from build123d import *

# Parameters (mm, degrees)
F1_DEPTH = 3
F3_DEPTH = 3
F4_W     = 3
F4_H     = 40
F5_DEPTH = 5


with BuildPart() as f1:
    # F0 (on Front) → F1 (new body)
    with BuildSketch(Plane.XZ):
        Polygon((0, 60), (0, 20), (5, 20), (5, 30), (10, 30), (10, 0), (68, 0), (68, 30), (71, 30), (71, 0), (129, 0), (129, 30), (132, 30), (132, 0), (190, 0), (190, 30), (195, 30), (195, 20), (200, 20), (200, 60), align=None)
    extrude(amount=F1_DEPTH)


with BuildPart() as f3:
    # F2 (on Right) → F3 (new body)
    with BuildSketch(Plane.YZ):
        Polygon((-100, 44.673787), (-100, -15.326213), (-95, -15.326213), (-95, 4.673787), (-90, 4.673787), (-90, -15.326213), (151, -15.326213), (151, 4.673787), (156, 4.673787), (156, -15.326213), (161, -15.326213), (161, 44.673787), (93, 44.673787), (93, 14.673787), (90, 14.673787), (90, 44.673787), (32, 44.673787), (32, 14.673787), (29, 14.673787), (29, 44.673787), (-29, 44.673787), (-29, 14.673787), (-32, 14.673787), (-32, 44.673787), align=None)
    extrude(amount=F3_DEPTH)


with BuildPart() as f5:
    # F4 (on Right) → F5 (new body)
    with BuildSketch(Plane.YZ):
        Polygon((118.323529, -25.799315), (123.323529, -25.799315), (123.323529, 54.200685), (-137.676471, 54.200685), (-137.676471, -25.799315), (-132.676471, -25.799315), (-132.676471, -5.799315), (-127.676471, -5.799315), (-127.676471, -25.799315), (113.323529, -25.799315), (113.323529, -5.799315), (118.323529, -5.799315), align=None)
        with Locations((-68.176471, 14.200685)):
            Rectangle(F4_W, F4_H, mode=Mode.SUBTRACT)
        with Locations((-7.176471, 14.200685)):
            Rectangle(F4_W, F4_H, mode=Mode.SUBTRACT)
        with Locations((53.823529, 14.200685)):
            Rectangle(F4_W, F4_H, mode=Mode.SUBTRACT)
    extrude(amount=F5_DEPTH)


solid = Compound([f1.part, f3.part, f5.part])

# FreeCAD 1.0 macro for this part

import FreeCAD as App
import Part
import Sketcher

doc = App.newDocument("Part")
body = doc.addObject("PartDesign::Body", "Body")

sketch1 = body.newObject("Sketcher::SketchObject", "Sketch")
sketch1.AttachmentSupport = (doc.getObject("XZ_Plane"), [""])
sketch1.MapMode = "FlatFace"
sketch1.addGeometry(Part.LineSegment(App.Vector(0, 60, 0), App.Vector(0, 20, 0)), False)
sketch1.addGeometry(Part.LineSegment(App.Vector(0, 20, 0), App.Vector(5, 20, 0)), False)
sketch1.addGeometry(Part.LineSegment(App.Vector(5, 20, 0), App.Vector(5, 30, 0)), False)
sketch1.addGeometry(Part.LineSegment(App.Vector(5, 30, 0), App.Vector(10, 30, 0)), False)
sketch1.addGeometry(Part.LineSegment(App.Vector(10, 30, 0), App.Vector(10, 0, 0)), False)
sketch1.addGeometry(Part.LineSegment(App.Vector(10, 0, 0), App.Vector(68, 0, 0)), False)
sketch1.addGeometry(Part.LineSegment(App.Vector(68, 0, 0), App.Vector(68, 30, 0)), False)
sketch1.addGeometry(Part.LineSegment(App.Vector(68, 30, 0), App.Vector(71, 30, 0)), False)
sketch1.addGeometry(Part.LineSegment(App.Vector(71, 30, 0), App.Vector(71, 0, 0)), False)
sketch1.addGeometry(Part.LineSegment(App.Vector(71, 0, 0), App.Vector(129, 0, 0)), False)
sketch1.addGeometry(Part.LineSegment(App.Vector(129, 0, 0), App.Vector(129, 30, 0)), False)
sketch1.addGeometry(Part.LineSegment(App.Vector(129, 30, 0), App.Vector(132, 30, 0)), False)
sketch1.addGeometry(Part.LineSegment(App.Vector(132, 30, 0), App.Vector(132, 0, 0)), False)
sketch1.addGeometry(Part.LineSegment(App.Vector(132, 0, 0), App.Vector(190, 0, 0)), False)
sketch1.addGeometry(Part.LineSegment(App.Vector(190, 0, 0), App.Vector(190, 30, 0)), False)
sketch1.addGeometry(Part.LineSegment(App.Vector(190, 30, 0), App.Vector(195, 30, 0)), False)
sketch1.addGeometry(Part.LineSegment(App.Vector(195, 30, 0), App.Vector(195, 20, 0)), False)
sketch1.addGeometry(Part.LineSegment(App.Vector(195, 20, 0), App.Vector(200, 20, 0)), False)
sketch1.addGeometry(Part.LineSegment(App.Vector(200, 20, 0), App.Vector(200, 60, 0)), False)
sketch1.addGeometry(Part.LineSegment(App.Vector(200, 60, 0), App.Vector(0, 60, 0)), False)
sketch1.addConstraint(Sketcher.Constraint("Coincident", 0, 2, 1, 1))
sketch1.addConstraint(Sketcher.Constraint("Coincident", 1, 2, 2, 1))
sketch1.addConstraint(Sketcher.Constraint("Coincident", 2, 2, 3, 1))
sketch1.addConstraint(Sketcher.Constraint("Coincident", 3, 2, 4, 1))
sketch1.addConstraint(Sketcher.Constraint("Coincident", 4, 2, 5, 1))
sketch1.addConstraint(Sketcher.Constraint("Coincident", 5, 2, 6, 1))
sketch1.addConstraint(Sketcher.Constraint("Coincident", 6, 2, 7, 1))
sketch1.addConstraint(Sketcher.Constraint("Coincident", 7, 2, 8, 1))
sketch1.addConstraint(Sketcher.Constraint("Coincident", 8, 2, 9, 1))
sketch1.addConstraint(Sketcher.Constraint("Coincident", 9, 2, 10, 1))
sketch1.addConstraint(Sketcher.Constraint("Coincident", 10, 2, 11, 1))
sketch1.addConstraint(Sketcher.Constraint("Coincident", 11, 2, 12, 1))
sketch1.addConstraint(Sketcher.Constraint("Coincident", 12, 2, 13, 1))
sketch1.addConstraint(Sketcher.Constraint("Coincident", 13, 2, 14, 1))
sketch1.addConstraint(Sketcher.Constraint("Coincident", 14, 2, 15, 1))
sketch1.addConstraint(Sketcher.Constraint("Coincident", 15, 2, 16, 1))
sketch1.addConstraint(Sketcher.Constraint("Coincident", 16, 2, 17, 1))
sketch1.addConstraint(Sketcher.Constraint("Coincident", 17, 2, 18, 1))
sketch1.addConstraint(Sketcher.Constraint("Coincident", 18, 2, 19, 1))
sketch1.addConstraint(Sketcher.Constraint("Coincident", 19, 2, 0, 1))
sketch1.addConstraint(Sketcher.Constraint("Vertical", 0))
sketch1.addConstraint(Sketcher.Constraint("Horizontal", 1))
sketch1.addConstraint(Sketcher.Constraint("Vertical", 2))
sketch1.addConstraint(Sketcher.Constraint("Horizontal", 3))
sketch1.addConstraint(Sketcher.Constraint("Vertical", 4))
sketch1.addConstraint(Sketcher.Constraint("Horizontal", 5))
sketch1.addConstraint(Sketcher.Constraint("Vertical", 6))
sketch1.addConstraint(Sketcher.Constraint("Horizontal", 7))
sketch1.addConstraint(Sketcher.Constraint("Vertical", 8))
sketch1.addConstraint(Sketcher.Constraint("Horizontal", 9))
sketch1.addConstraint(Sketcher.Constraint("Vertical", 10))
sketch1.addConstraint(Sketcher.Constraint("Horizontal", 11))
sketch1.addConstraint(Sketcher.Constraint("Vertical", 12))
sketch1.addConstraint(Sketcher.Constraint("Horizontal", 13))
sketch1.addConstraint(Sketcher.Constraint("Vertical", 14))
sketch1.addConstraint(Sketcher.Constraint("Horizontal", 15))
sketch1.addConstraint(Sketcher.Constraint("Vertical", 16))
sketch1.addConstraint(Sketcher.Constraint("Horizontal", 17))
sketch1.addConstraint(Sketcher.Constraint("Vertical", 18))
sketch1.addConstraint(Sketcher.Constraint("Horizontal", 19))
sketch1.addConstraint(Sketcher.Constraint("PointOnObject", 0, 2, -2))
sketch1.addConstraint(Sketcher.Constraint("PointOnObject", 4, 2, -1))
sketch1.addConstraint(Sketcher.Constraint("PointOnObject", 8, 2, -1))
sketch1.addConstraint(Sketcher.Constraint("PointOnObject", 12, 2, -1))
sketch1.addConstraint(Sketcher.Constraint("Horizontal", 3, 2, 6, 2))
sketch1.addConstraint(Sketcher.Constraint("Horizontal", 7, 2, 10, 2))
sketch1.addConstraint(Sketcher.Constraint("Horizontal", 11, 2, 14, 2))
sketch1.addConstraint(Sketcher.Constraint("Horizontal", 1, 2, 16, 2))
sketch1.addConstraint(Sketcher.Constraint("Equal", 1, 3))
sketch1.addConstraint(Sketcher.Constraint("Equal", 5, 9))
sketch1.addConstraint(Sketcher.Constraint("Equal", 7, 11))
sketch1.addConstraint(Sketcher.Constraint("Equal", 9, 13))
sketch1.addConstraint(Sketcher.Constraint("Equal", 3, 15))
sketch1.addConstraint(Sketcher.Constraint("Equal", 15, 17))
sketch1.addConstraint(Sketcher.Constraint("DistanceX", 1, 1, 1, 2, 5.0))
sketch1.addConstraint(Sketcher.Constraint("DistanceX", 5, 1, 5, 2, 58.0))
sketch1.addConstraint(Sketcher.Constraint("DistanceX", 7, 1, 7, 2, 3.0))
sketch1.addConstraint(Sketcher.Constraint("DistanceY", 0, 2, 0, 1, 40.0))
sketch1.addConstraint(Sketcher.Constraint("DistanceY", 2, 1, 2, 2, 10.0))
sketch1.addConstraint(Sketcher.Constraint("DistanceY", 4, 2, 4, 1, 30.0))
pad1 = body.newObject("PartDesign::Pad", "Pad")
pad1.Profile = sketch1
pad1.Length = 3
body2 = doc.addObject("PartDesign::Body", "Body001")

sketch2 = body2.newObject("Sketcher::SketchObject", "Sketch001")
sketch2.AttachmentSupport = (doc.getObject("YZ_Plane001"), [""])
sketch2.MapMode = "FlatFace"
sketch2.addGeometry(Part.LineSegment(App.Vector(-100, 44.7, 0), App.Vector(-100, -15.3, 0)), False)
sketch2.addGeometry(Part.LineSegment(App.Vector(-100, -15.3, 0), App.Vector(-95, -15.3, 0)), False)
sketch2.addGeometry(Part.LineSegment(App.Vector(-95, -15.3, 0), App.Vector(-95, 4.7, 0)), False)
sketch2.addGeometry(Part.LineSegment(App.Vector(-95, 4.7, 0), App.Vector(-90, 4.7, 0)), False)
sketch2.addGeometry(Part.LineSegment(App.Vector(-90, 4.7, 0), App.Vector(-90, -15.3, 0)), False)
sketch2.addGeometry(Part.LineSegment(App.Vector(-90, -15.3, 0), App.Vector(151, -15.3, 0)), False)
sketch2.addGeometry(Part.LineSegment(App.Vector(151, -15.3, 0), App.Vector(151, 4.7, 0)), False)
sketch2.addGeometry(Part.LineSegment(App.Vector(151, 4.7, 0), App.Vector(156, 4.7, 0)), False)
sketch2.addGeometry(Part.LineSegment(App.Vector(156, 4.7, 0), App.Vector(156, -15.3, 0)), False)
sketch2.addGeometry(Part.LineSegment(App.Vector(156, -15.3, 0), App.Vector(161, -15.3, 0)), False)
sketch2.addGeometry(Part.LineSegment(App.Vector(161, -15.3, 0), App.Vector(161, 44.7, 0)), False)
sketch2.addGeometry(Part.LineSegment(App.Vector(161, 44.7, 0), App.Vector(93, 44.7, 0)), False)
sketch2.addGeometry(Part.LineSegment(App.Vector(93, 44.7, 0), App.Vector(93, 14.7, 0)), False)
sketch2.addGeometry(Part.LineSegment(App.Vector(93, 14.7, 0), App.Vector(90, 14.7, 0)), False)
sketch2.addGeometry(Part.LineSegment(App.Vector(90, 14.7, 0), App.Vector(90, 44.7, 0)), False)
sketch2.addGeometry(Part.LineSegment(App.Vector(90, 44.7, 0), App.Vector(32, 44.7, 0)), False)
sketch2.addGeometry(Part.LineSegment(App.Vector(32, 44.7, 0), App.Vector(32, 14.7, 0)), False)
sketch2.addGeometry(Part.LineSegment(App.Vector(32, 14.7, 0), App.Vector(29, 14.7, 0)), False)
sketch2.addGeometry(Part.LineSegment(App.Vector(29, 14.7, 0), App.Vector(29, 44.7, 0)), False)
sketch2.addGeometry(Part.LineSegment(App.Vector(29, 44.7, 0), App.Vector(-29, 44.7, 0)), False)
sketch2.addGeometry(Part.LineSegment(App.Vector(-29, 44.7, 0), App.Vector(-29, 14.7, 0)), False)
sketch2.addGeometry(Part.LineSegment(App.Vector(-29, 14.7, 0), App.Vector(-32, 14.7, 0)), False)
sketch2.addGeometry(Part.LineSegment(App.Vector(-32, 14.7, 0), App.Vector(-32, 44.7, 0)), False)
sketch2.addGeometry(Part.LineSegment(App.Vector(-32, 44.7, 0), App.Vector(-100, 44.7, 0)), False)
sketch2.addConstraint(Sketcher.Constraint("Coincident", 0, 2, 1, 1))
sketch2.addConstraint(Sketcher.Constraint("Coincident", 1, 2, 2, 1))
sketch2.addConstraint(Sketcher.Constraint("Coincident", 2, 2, 3, 1))
sketch2.addConstraint(Sketcher.Constraint("Coincident", 3, 2, 4, 1))
sketch2.addConstraint(Sketcher.Constraint("Coincident", 4, 2, 5, 1))
sketch2.addConstraint(Sketcher.Constraint("Coincident", 5, 2, 6, 1))
sketch2.addConstraint(Sketcher.Constraint("Coincident", 6, 2, 7, 1))
sketch2.addConstraint(Sketcher.Constraint("Coincident", 7, 2, 8, 1))
sketch2.addConstraint(Sketcher.Constraint("Coincident", 8, 2, 9, 1))
sketch2.addConstraint(Sketcher.Constraint("Coincident", 9, 2, 10, 1))
sketch2.addConstraint(Sketcher.Constraint("Coincident", 10, 2, 11, 1))
sketch2.addConstraint(Sketcher.Constraint("Coincident", 11, 2, 12, 1))
sketch2.addConstraint(Sketcher.Constraint("Coincident", 12, 2, 13, 1))
sketch2.addConstraint(Sketcher.Constraint("Coincident", 13, 2, 14, 1))
sketch2.addConstraint(Sketcher.Constraint("Coincident", 14, 2, 15, 1))
sketch2.addConstraint(Sketcher.Constraint("Coincident", 15, 2, 16, 1))
sketch2.addConstraint(Sketcher.Constraint("Coincident", 16, 2, 17, 1))
sketch2.addConstraint(Sketcher.Constraint("Coincident", 17, 2, 18, 1))
sketch2.addConstraint(Sketcher.Constraint("Coincident", 18, 2, 19, 1))
sketch2.addConstraint(Sketcher.Constraint("Coincident", 19, 2, 20, 1))
sketch2.addConstraint(Sketcher.Constraint("Coincident", 20, 2, 21, 1))
sketch2.addConstraint(Sketcher.Constraint("Coincident", 21, 2, 22, 1))
sketch2.addConstraint(Sketcher.Constraint("Coincident", 22, 2, 23, 1))
sketch2.addConstraint(Sketcher.Constraint("Coincident", 23, 2, 0, 1))
sketch2.addConstraint(Sketcher.Constraint("Vertical", 0))
sketch2.addConstraint(Sketcher.Constraint("Horizontal", 1))
sketch2.addConstraint(Sketcher.Constraint("Vertical", 2))
sketch2.addConstraint(Sketcher.Constraint("Horizontal", 3))
sketch2.addConstraint(Sketcher.Constraint("Vertical", 4))
sketch2.addConstraint(Sketcher.Constraint("Horizontal", 5))
sketch2.addConstraint(Sketcher.Constraint("Vertical", 6))
sketch2.addConstraint(Sketcher.Constraint("Horizontal", 7))
sketch2.addConstraint(Sketcher.Constraint("Vertical", 8))
sketch2.addConstraint(Sketcher.Constraint("Horizontal", 9))
sketch2.addConstraint(Sketcher.Constraint("Vertical", 10))
sketch2.addConstraint(Sketcher.Constraint("Horizontal", 11))
sketch2.addConstraint(Sketcher.Constraint("Vertical", 12))
sketch2.addConstraint(Sketcher.Constraint("Horizontal", 13))
sketch2.addConstraint(Sketcher.Constraint("Vertical", 14))
sketch2.addConstraint(Sketcher.Constraint("Horizontal", 15))
sketch2.addConstraint(Sketcher.Constraint("Vertical", 16))
sketch2.addConstraint(Sketcher.Constraint("Horizontal", 17))
sketch2.addConstraint(Sketcher.Constraint("Vertical", 18))
sketch2.addConstraint(Sketcher.Constraint("Horizontal", 19))
sketch2.addConstraint(Sketcher.Constraint("Vertical", 20))
sketch2.addConstraint(Sketcher.Constraint("Horizontal", 21))
sketch2.addConstraint(Sketcher.Constraint("Vertical", 22))
sketch2.addConstraint(Sketcher.Constraint("Horizontal", 23))
sketch2.addConstraint(Sketcher.Constraint("Symmetric", 17, 2, 20, 2, -2))
sketch2.addConstraint(Sketcher.Constraint("Symmetric", 15, 2, 22, 2, -2))
sketch2.addConstraint(Sketcher.Constraint("Horizontal", 1, 2, 4, 2))
sketch2.addConstraint(Sketcher.Constraint("Horizontal", 3, 2, 6, 2))
sketch2.addConstraint(Sketcher.Constraint("Horizontal", 5, 2, 8, 2))
sketch2.addConstraint(Sketcher.Constraint("Horizontal", 11, 2, 14, 2))
sketch2.addConstraint(Sketcher.Constraint("Horizontal", 13, 2, 16, 2))
sketch2.addConstraint(Sketcher.Constraint("Horizontal", 15, 2, 18, 2))
sketch2.addConstraint(Sketcher.Constraint("Equal", 1, 3))
sketch2.addConstraint(Sketcher.Constraint("Equal", 3, 7))
sketch2.addConstraint(Sketcher.Constraint("Equal", 7, 9))
sketch2.addConstraint(Sketcher.Constraint("Equal", 13, 17))
sketch2.addConstraint(Sketcher.Constraint("Equal", 15, 19))
sketch2.addConstraint(Sketcher.Constraint("Equal", 11, 23))
sketch2.addConstraint(Sketcher.Constraint("DistanceX", 1, 1, 1, 2, 5.0))
sketch2.addConstraint(Sketcher.Constraint("DistanceX", 5, 1, 5, 2, 241.0))
sketch2.addConstraint(Sketcher.Constraint("DistanceX", 11, 2, 11, 1, 68.0))
sketch2.addConstraint(Sketcher.Constraint("DistanceX", 13, 2, 13, 1, 3.0))
sketch2.addConstraint(Sketcher.Constraint("DistanceY", 0, 2, 0, 1, 60.0))
sketch2.addConstraint(Sketcher.Constraint("DistanceY", 2, 1, 2, 2, 20.0))
sketch2.addConstraint(Sketcher.Constraint("DistanceY", 12, 2, 12, 1, 30.0))
sketch2.addConstraint(Sketcher.Constraint("DistanceY", 0, 2, -1, 1, 15.326213))
pad2 = body2.newObject("PartDesign::Pad", "Pad001")
pad2.Profile = sketch2
pad2.Length = 3
body3 = doc.addObject("PartDesign::Body", "Body002")

sketch3 = body3.newObject("Sketcher::SketchObject", "Sketch002")
sketch3.AttachmentSupport = (doc.getObject("YZ_Plane002"), [""])
sketch3.MapMode = "FlatFace"
sketch3.addGeometry(Part.LineSegment(App.Vector(118.3, -25.8, 0), App.Vector(123.3, -25.8, 0)), False)
sketch3.addGeometry(Part.LineSegment(App.Vector(123.3, -25.8, 0), App.Vector(123.3, 54.2, 0)), False)
sketch3.addGeometry(Part.LineSegment(App.Vector(123.3, 54.2, 0), App.Vector(-137.7, 54.2, 0)), False)
sketch3.addGeometry(Part.LineSegment(App.Vector(-137.7, 54.2, 0), App.Vector(-137.7, -25.8, 0)), False)
sketch3.addGeometry(Part.LineSegment(App.Vector(-137.7, -25.8, 0), App.Vector(-132.7, -25.8, 0)), False)
sketch3.addGeometry(Part.LineSegment(App.Vector(-132.7, -25.8, 0), App.Vector(-132.7, -5.8, 0)), False)
sketch3.addGeometry(Part.LineSegment(App.Vector(-132.7, -5.8, 0), App.Vector(-127.7, -5.8, 0)), False)
sketch3.addGeometry(Part.LineSegment(App.Vector(-127.7, -5.8, 0), App.Vector(-127.7, -25.8, 0)), False)
sketch3.addGeometry(Part.LineSegment(App.Vector(-127.7, -25.8, 0), App.Vector(113.3, -25.8, 0)), False)
sketch3.addGeometry(Part.LineSegment(App.Vector(113.3, -25.8, 0), App.Vector(113.3, -5.8, 0)), False)
sketch3.addGeometry(Part.LineSegment(App.Vector(113.3, -5.8, 0), App.Vector(118.3, -5.8, 0)), False)
sketch3.addGeometry(Part.LineSegment(App.Vector(118.3, -5.8, 0), App.Vector(118.3, -25.8, 0)), False)
sketch3.addGeometry(Part.LineSegment(App.Vector(-66.7, -5.8, 0), App.Vector(-69.7, -5.8, 0)), False)
sketch3.addGeometry(Part.LineSegment(App.Vector(-69.7, -5.8, 0), App.Vector(-69.7, 34.2, 0)), False)
sketch3.addGeometry(Part.LineSegment(App.Vector(-69.7, 34.2, 0), App.Vector(-66.7, 34.2, 0)), False)
sketch3.addGeometry(Part.LineSegment(App.Vector(-66.7, 34.2, 0), App.Vector(-66.7, -5.8, 0)), False)
sketch3.addGeometry(Part.LineSegment(App.Vector(-5.7, -5.8, 0), App.Vector(-8.7, -5.8, 0)), False)
sketch3.addGeometry(Part.LineSegment(App.Vector(-8.7, -5.8, 0), App.Vector(-8.7, 34.2, 0)), False)
sketch3.addGeometry(Part.LineSegment(App.Vector(-8.7, 34.2, 0), App.Vector(-5.7, 34.2, 0)), False)
sketch3.addGeometry(Part.LineSegment(App.Vector(-5.7, 34.2, 0), App.Vector(-5.7, -5.8, 0)), False)
sketch3.addGeometry(Part.LineSegment(App.Vector(55.3, -5.8, 0), App.Vector(52.3, -5.8, 0)), False)
sketch3.addGeometry(Part.LineSegment(App.Vector(52.3, -5.8, 0), App.Vector(52.3, 34.2, 0)), False)
sketch3.addGeometry(Part.LineSegment(App.Vector(52.3, 34.2, 0), App.Vector(55.3, 34.2, 0)), False)
sketch3.addGeometry(Part.LineSegment(App.Vector(55.3, 34.2, 0), App.Vector(55.3, -5.8, 0)), False)
sketch3.addConstraint(Sketcher.Constraint("Coincident", 0, 2, 1, 1))
sketch3.addConstraint(Sketcher.Constraint("Coincident", 1, 2, 2, 1))
sketch3.addConstraint(Sketcher.Constraint("Coincident", 2, 2, 3, 1))
sketch3.addConstraint(Sketcher.Constraint("Coincident", 3, 2, 4, 1))
sketch3.addConstraint(Sketcher.Constraint("Coincident", 4, 2, 5, 1))
sketch3.addConstraint(Sketcher.Constraint("Coincident", 5, 2, 6, 1))
sketch3.addConstraint(Sketcher.Constraint("Coincident", 6, 2, 7, 1))
sketch3.addConstraint(Sketcher.Constraint("Coincident", 7, 2, 8, 1))
sketch3.addConstraint(Sketcher.Constraint("Coincident", 8, 2, 9, 1))
sketch3.addConstraint(Sketcher.Constraint("Coincident", 9, 2, 10, 1))
sketch3.addConstraint(Sketcher.Constraint("Coincident", 10, 2, 11, 1))
sketch3.addConstraint(Sketcher.Constraint("Coincident", 11, 2, 0, 1))
sketch3.addConstraint(Sketcher.Constraint("Coincident", 12, 2, 13, 1))
sketch3.addConstraint(Sketcher.Constraint("Coincident", 13, 2, 14, 1))
sketch3.addConstraint(Sketcher.Constraint("Coincident", 14, 2, 15, 1))
sketch3.addConstraint(Sketcher.Constraint("Coincident", 15, 2, 12, 1))
sketch3.addConstraint(Sketcher.Constraint("Coincident", 16, 2, 17, 1))
sketch3.addConstraint(Sketcher.Constraint("Coincident", 17, 2, 18, 1))
sketch3.addConstraint(Sketcher.Constraint("Coincident", 18, 2, 19, 1))
sketch3.addConstraint(Sketcher.Constraint("Coincident", 19, 2, 16, 1))
sketch3.addConstraint(Sketcher.Constraint("Coincident", 20, 2, 21, 1))
sketch3.addConstraint(Sketcher.Constraint("Coincident", 21, 2, 22, 1))
sketch3.addConstraint(Sketcher.Constraint("Coincident", 22, 2, 23, 1))
sketch3.addConstraint(Sketcher.Constraint("Coincident", 23, 2, 20, 1))
sketch3.addConstraint(Sketcher.Constraint("Horizontal", 0))
sketch3.addConstraint(Sketcher.Constraint("Vertical", 1))
sketch3.addConstraint(Sketcher.Constraint("Horizontal", 2))
sketch3.addConstraint(Sketcher.Constraint("Vertical", 3))
sketch3.addConstraint(Sketcher.Constraint("Horizontal", 4))
sketch3.addConstraint(Sketcher.Constraint("Vertical", 5))
sketch3.addConstraint(Sketcher.Constraint("Horizontal", 6))
sketch3.addConstraint(Sketcher.Constraint("Vertical", 7))
sketch3.addConstraint(Sketcher.Constraint("Horizontal", 8))
sketch3.addConstraint(Sketcher.Constraint("Vertical", 9))
sketch3.addConstraint(Sketcher.Constraint("Horizontal", 10))
sketch3.addConstraint(Sketcher.Constraint("Vertical", 11))
sketch3.addConstraint(Sketcher.Constraint("Horizontal", 12))
sketch3.addConstraint(Sketcher.Constraint("Vertical", 13))
sketch3.addConstraint(Sketcher.Constraint("Horizontal", 14))
sketch3.addConstraint(Sketcher.Constraint("Vertical", 15))
sketch3.addConstraint(Sketcher.Constraint("Horizontal", 16))
sketch3.addConstraint(Sketcher.Constraint("Vertical", 17))
sketch3.addConstraint(Sketcher.Constraint("Horizontal", 18))
sketch3.addConstraint(Sketcher.Constraint("Vertical", 19))
sketch3.addConstraint(Sketcher.Constraint("Horizontal", 20))
sketch3.addConstraint(Sketcher.Constraint("Vertical", 21))
sketch3.addConstraint(Sketcher.Constraint("Horizontal", 22))
sketch3.addConstraint(Sketcher.Constraint("Vertical", 23))
sketch3.addConstraint(Sketcher.Constraint("Horizontal", 0, 2, 3, 2))
sketch3.addConstraint(Sketcher.Constraint("Horizontal", 4, 2, 7, 2))
sketch3.addConstraint(Sketcher.Constraint("Horizontal", 6, 2, 9, 2))
sketch3.addConstraint(Sketcher.Constraint("Horizontal", 10, 2, 12, 2))
sketch3.addConstraint(Sketcher.Constraint("Horizontal", 15, 2, 16, 2))
sketch3.addConstraint(Sketcher.Constraint("Horizontal", 14, 2, 17, 2))
sketch3.addConstraint(Sketcher.Constraint("Horizontal", 19, 2, 20, 2))
sketch3.addConstraint(Sketcher.Constraint("Horizontal", 18, 2, 21, 2))
sketch3.addConstraint(Sketcher.Constraint("Equal", 0, 4))
sketch3.addConstraint(Sketcher.Constraint("Equal", 4, 6))
sketch3.addConstraint(Sketcher.Constraint("Equal", 6, 10))
sketch3.addConstraint(Sketcher.Constraint("Equal", 14, 16))
sketch3.addConstraint(Sketcher.Constraint("Equal", 18, 20))
sketch3.addConstraint(Sketcher.Constraint("DistanceX", 0, 1, 0, 2, 5.0))
sketch3.addConstraint(Sketcher.Constraint("DistanceX", 2, 2, 2, 1, 261.0))
sketch3.addConstraint(Sketcher.Constraint("DistanceX", 12, 2, 12, 1, 3.0))
sketch3.addConstraint(Sketcher.Constraint("DistanceY", 1, 1, 1, 2, 80.0))
sketch3.addConstraint(Sketcher.Constraint("DistanceY", 5, 1, 5, 2, 20.0))
sketch3.addConstraint(Sketcher.Constraint("DistanceY", 13, 1, 13, 2, 40.0))
sketch3.addConstraint(Sketcher.Constraint("DistanceX", 6, 2, 12, 2, 58.0))
sketch3.addConstraint(Sketcher.Constraint("DistanceX", 15, 2, 16, 2, 58.0))
sketch3.addConstraint(Sketcher.Constraint("DistanceX", 19, 2, 20, 2, 58.0))
sketch3.addConstraint(Sketcher.Constraint("DistanceX", -1, 1, 0, 2, 123.323529))
sketch3.addConstraint(Sketcher.Constraint("DistanceY", 0, 2, -1, 1, 25.799315))
pad3 = body3.newObject("PartDesign::Pad", "Pad002")
pad3.Profile = sketch3
pad3.Length = 5

doc.recompute()
